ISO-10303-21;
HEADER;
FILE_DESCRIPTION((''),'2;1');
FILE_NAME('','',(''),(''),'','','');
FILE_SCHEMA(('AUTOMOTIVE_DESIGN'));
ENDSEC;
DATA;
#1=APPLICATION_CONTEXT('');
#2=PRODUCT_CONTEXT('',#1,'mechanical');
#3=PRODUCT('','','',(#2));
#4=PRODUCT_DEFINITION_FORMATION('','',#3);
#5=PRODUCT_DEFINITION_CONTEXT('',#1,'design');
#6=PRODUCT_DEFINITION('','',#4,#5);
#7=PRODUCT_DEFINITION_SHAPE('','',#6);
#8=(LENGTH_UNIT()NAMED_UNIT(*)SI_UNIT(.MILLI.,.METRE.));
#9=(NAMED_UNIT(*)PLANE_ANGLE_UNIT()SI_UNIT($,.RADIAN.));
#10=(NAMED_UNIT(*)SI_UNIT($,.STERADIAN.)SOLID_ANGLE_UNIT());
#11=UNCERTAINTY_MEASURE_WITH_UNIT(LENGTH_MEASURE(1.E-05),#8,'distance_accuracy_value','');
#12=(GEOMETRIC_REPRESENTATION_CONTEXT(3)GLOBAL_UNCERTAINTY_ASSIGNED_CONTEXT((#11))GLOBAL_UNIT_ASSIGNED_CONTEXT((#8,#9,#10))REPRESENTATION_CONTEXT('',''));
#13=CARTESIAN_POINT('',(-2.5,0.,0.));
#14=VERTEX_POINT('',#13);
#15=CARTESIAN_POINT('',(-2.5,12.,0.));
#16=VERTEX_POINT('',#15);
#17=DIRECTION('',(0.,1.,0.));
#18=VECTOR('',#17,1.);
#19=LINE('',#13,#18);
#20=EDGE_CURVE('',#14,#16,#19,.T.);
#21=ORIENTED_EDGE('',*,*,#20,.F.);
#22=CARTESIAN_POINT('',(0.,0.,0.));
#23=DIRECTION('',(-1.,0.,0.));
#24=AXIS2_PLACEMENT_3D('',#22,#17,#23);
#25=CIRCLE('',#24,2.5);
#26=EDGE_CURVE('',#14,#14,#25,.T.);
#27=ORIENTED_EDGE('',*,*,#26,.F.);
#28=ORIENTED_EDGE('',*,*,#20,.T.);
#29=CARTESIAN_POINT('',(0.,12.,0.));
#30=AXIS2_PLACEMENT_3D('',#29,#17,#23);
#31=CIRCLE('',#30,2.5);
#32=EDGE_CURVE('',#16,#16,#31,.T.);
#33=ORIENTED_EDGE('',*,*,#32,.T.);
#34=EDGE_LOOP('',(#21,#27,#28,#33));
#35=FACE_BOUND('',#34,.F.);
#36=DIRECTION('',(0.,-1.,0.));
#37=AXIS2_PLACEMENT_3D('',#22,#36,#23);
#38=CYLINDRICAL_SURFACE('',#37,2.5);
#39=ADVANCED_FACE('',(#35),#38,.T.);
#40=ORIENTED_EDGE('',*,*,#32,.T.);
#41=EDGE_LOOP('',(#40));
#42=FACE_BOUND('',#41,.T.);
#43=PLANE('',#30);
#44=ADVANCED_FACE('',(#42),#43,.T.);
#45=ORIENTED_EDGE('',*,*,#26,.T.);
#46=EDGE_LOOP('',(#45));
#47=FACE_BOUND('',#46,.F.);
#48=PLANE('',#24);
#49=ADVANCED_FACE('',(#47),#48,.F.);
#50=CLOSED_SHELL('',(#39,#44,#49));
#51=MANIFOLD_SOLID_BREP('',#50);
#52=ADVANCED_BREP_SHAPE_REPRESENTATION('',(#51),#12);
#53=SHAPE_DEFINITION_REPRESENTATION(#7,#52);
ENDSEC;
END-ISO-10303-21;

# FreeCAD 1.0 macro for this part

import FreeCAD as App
import Part
import Sketcher
from FreeCAD import Vector

doc = App.newDocument("Part")
body = doc.addObject("PartDesign::Body", "Body")

# Sketch on XZ plane
sketch1 = doc.addObject("Sketcher::SketchObject", "Sketch")
body.addObject(sketch1)
sketch1.AttachmentSupport = (doc.XZ_Plane, [""])
sketch1.MapMode = "FlatFace"
sketch1.addGeometry(Part.Circle(Vector(0, 0, 0), Vector(0, 0, 1), 2.5), False)
sketch1.addConstraint([
    Sketcher.Constraint("Coincident", 0, 3, -1, 1),
    Sketcher.Constraint("Diameter", 0, 5.0),
])
pad1 = doc.addObject("PartDesign::Pad", "Pad")
body.addObject(pad1)
pad1.Profile = sketch1
pad1.Length = 12
pad1.Reversed = True

doc.recompute()
